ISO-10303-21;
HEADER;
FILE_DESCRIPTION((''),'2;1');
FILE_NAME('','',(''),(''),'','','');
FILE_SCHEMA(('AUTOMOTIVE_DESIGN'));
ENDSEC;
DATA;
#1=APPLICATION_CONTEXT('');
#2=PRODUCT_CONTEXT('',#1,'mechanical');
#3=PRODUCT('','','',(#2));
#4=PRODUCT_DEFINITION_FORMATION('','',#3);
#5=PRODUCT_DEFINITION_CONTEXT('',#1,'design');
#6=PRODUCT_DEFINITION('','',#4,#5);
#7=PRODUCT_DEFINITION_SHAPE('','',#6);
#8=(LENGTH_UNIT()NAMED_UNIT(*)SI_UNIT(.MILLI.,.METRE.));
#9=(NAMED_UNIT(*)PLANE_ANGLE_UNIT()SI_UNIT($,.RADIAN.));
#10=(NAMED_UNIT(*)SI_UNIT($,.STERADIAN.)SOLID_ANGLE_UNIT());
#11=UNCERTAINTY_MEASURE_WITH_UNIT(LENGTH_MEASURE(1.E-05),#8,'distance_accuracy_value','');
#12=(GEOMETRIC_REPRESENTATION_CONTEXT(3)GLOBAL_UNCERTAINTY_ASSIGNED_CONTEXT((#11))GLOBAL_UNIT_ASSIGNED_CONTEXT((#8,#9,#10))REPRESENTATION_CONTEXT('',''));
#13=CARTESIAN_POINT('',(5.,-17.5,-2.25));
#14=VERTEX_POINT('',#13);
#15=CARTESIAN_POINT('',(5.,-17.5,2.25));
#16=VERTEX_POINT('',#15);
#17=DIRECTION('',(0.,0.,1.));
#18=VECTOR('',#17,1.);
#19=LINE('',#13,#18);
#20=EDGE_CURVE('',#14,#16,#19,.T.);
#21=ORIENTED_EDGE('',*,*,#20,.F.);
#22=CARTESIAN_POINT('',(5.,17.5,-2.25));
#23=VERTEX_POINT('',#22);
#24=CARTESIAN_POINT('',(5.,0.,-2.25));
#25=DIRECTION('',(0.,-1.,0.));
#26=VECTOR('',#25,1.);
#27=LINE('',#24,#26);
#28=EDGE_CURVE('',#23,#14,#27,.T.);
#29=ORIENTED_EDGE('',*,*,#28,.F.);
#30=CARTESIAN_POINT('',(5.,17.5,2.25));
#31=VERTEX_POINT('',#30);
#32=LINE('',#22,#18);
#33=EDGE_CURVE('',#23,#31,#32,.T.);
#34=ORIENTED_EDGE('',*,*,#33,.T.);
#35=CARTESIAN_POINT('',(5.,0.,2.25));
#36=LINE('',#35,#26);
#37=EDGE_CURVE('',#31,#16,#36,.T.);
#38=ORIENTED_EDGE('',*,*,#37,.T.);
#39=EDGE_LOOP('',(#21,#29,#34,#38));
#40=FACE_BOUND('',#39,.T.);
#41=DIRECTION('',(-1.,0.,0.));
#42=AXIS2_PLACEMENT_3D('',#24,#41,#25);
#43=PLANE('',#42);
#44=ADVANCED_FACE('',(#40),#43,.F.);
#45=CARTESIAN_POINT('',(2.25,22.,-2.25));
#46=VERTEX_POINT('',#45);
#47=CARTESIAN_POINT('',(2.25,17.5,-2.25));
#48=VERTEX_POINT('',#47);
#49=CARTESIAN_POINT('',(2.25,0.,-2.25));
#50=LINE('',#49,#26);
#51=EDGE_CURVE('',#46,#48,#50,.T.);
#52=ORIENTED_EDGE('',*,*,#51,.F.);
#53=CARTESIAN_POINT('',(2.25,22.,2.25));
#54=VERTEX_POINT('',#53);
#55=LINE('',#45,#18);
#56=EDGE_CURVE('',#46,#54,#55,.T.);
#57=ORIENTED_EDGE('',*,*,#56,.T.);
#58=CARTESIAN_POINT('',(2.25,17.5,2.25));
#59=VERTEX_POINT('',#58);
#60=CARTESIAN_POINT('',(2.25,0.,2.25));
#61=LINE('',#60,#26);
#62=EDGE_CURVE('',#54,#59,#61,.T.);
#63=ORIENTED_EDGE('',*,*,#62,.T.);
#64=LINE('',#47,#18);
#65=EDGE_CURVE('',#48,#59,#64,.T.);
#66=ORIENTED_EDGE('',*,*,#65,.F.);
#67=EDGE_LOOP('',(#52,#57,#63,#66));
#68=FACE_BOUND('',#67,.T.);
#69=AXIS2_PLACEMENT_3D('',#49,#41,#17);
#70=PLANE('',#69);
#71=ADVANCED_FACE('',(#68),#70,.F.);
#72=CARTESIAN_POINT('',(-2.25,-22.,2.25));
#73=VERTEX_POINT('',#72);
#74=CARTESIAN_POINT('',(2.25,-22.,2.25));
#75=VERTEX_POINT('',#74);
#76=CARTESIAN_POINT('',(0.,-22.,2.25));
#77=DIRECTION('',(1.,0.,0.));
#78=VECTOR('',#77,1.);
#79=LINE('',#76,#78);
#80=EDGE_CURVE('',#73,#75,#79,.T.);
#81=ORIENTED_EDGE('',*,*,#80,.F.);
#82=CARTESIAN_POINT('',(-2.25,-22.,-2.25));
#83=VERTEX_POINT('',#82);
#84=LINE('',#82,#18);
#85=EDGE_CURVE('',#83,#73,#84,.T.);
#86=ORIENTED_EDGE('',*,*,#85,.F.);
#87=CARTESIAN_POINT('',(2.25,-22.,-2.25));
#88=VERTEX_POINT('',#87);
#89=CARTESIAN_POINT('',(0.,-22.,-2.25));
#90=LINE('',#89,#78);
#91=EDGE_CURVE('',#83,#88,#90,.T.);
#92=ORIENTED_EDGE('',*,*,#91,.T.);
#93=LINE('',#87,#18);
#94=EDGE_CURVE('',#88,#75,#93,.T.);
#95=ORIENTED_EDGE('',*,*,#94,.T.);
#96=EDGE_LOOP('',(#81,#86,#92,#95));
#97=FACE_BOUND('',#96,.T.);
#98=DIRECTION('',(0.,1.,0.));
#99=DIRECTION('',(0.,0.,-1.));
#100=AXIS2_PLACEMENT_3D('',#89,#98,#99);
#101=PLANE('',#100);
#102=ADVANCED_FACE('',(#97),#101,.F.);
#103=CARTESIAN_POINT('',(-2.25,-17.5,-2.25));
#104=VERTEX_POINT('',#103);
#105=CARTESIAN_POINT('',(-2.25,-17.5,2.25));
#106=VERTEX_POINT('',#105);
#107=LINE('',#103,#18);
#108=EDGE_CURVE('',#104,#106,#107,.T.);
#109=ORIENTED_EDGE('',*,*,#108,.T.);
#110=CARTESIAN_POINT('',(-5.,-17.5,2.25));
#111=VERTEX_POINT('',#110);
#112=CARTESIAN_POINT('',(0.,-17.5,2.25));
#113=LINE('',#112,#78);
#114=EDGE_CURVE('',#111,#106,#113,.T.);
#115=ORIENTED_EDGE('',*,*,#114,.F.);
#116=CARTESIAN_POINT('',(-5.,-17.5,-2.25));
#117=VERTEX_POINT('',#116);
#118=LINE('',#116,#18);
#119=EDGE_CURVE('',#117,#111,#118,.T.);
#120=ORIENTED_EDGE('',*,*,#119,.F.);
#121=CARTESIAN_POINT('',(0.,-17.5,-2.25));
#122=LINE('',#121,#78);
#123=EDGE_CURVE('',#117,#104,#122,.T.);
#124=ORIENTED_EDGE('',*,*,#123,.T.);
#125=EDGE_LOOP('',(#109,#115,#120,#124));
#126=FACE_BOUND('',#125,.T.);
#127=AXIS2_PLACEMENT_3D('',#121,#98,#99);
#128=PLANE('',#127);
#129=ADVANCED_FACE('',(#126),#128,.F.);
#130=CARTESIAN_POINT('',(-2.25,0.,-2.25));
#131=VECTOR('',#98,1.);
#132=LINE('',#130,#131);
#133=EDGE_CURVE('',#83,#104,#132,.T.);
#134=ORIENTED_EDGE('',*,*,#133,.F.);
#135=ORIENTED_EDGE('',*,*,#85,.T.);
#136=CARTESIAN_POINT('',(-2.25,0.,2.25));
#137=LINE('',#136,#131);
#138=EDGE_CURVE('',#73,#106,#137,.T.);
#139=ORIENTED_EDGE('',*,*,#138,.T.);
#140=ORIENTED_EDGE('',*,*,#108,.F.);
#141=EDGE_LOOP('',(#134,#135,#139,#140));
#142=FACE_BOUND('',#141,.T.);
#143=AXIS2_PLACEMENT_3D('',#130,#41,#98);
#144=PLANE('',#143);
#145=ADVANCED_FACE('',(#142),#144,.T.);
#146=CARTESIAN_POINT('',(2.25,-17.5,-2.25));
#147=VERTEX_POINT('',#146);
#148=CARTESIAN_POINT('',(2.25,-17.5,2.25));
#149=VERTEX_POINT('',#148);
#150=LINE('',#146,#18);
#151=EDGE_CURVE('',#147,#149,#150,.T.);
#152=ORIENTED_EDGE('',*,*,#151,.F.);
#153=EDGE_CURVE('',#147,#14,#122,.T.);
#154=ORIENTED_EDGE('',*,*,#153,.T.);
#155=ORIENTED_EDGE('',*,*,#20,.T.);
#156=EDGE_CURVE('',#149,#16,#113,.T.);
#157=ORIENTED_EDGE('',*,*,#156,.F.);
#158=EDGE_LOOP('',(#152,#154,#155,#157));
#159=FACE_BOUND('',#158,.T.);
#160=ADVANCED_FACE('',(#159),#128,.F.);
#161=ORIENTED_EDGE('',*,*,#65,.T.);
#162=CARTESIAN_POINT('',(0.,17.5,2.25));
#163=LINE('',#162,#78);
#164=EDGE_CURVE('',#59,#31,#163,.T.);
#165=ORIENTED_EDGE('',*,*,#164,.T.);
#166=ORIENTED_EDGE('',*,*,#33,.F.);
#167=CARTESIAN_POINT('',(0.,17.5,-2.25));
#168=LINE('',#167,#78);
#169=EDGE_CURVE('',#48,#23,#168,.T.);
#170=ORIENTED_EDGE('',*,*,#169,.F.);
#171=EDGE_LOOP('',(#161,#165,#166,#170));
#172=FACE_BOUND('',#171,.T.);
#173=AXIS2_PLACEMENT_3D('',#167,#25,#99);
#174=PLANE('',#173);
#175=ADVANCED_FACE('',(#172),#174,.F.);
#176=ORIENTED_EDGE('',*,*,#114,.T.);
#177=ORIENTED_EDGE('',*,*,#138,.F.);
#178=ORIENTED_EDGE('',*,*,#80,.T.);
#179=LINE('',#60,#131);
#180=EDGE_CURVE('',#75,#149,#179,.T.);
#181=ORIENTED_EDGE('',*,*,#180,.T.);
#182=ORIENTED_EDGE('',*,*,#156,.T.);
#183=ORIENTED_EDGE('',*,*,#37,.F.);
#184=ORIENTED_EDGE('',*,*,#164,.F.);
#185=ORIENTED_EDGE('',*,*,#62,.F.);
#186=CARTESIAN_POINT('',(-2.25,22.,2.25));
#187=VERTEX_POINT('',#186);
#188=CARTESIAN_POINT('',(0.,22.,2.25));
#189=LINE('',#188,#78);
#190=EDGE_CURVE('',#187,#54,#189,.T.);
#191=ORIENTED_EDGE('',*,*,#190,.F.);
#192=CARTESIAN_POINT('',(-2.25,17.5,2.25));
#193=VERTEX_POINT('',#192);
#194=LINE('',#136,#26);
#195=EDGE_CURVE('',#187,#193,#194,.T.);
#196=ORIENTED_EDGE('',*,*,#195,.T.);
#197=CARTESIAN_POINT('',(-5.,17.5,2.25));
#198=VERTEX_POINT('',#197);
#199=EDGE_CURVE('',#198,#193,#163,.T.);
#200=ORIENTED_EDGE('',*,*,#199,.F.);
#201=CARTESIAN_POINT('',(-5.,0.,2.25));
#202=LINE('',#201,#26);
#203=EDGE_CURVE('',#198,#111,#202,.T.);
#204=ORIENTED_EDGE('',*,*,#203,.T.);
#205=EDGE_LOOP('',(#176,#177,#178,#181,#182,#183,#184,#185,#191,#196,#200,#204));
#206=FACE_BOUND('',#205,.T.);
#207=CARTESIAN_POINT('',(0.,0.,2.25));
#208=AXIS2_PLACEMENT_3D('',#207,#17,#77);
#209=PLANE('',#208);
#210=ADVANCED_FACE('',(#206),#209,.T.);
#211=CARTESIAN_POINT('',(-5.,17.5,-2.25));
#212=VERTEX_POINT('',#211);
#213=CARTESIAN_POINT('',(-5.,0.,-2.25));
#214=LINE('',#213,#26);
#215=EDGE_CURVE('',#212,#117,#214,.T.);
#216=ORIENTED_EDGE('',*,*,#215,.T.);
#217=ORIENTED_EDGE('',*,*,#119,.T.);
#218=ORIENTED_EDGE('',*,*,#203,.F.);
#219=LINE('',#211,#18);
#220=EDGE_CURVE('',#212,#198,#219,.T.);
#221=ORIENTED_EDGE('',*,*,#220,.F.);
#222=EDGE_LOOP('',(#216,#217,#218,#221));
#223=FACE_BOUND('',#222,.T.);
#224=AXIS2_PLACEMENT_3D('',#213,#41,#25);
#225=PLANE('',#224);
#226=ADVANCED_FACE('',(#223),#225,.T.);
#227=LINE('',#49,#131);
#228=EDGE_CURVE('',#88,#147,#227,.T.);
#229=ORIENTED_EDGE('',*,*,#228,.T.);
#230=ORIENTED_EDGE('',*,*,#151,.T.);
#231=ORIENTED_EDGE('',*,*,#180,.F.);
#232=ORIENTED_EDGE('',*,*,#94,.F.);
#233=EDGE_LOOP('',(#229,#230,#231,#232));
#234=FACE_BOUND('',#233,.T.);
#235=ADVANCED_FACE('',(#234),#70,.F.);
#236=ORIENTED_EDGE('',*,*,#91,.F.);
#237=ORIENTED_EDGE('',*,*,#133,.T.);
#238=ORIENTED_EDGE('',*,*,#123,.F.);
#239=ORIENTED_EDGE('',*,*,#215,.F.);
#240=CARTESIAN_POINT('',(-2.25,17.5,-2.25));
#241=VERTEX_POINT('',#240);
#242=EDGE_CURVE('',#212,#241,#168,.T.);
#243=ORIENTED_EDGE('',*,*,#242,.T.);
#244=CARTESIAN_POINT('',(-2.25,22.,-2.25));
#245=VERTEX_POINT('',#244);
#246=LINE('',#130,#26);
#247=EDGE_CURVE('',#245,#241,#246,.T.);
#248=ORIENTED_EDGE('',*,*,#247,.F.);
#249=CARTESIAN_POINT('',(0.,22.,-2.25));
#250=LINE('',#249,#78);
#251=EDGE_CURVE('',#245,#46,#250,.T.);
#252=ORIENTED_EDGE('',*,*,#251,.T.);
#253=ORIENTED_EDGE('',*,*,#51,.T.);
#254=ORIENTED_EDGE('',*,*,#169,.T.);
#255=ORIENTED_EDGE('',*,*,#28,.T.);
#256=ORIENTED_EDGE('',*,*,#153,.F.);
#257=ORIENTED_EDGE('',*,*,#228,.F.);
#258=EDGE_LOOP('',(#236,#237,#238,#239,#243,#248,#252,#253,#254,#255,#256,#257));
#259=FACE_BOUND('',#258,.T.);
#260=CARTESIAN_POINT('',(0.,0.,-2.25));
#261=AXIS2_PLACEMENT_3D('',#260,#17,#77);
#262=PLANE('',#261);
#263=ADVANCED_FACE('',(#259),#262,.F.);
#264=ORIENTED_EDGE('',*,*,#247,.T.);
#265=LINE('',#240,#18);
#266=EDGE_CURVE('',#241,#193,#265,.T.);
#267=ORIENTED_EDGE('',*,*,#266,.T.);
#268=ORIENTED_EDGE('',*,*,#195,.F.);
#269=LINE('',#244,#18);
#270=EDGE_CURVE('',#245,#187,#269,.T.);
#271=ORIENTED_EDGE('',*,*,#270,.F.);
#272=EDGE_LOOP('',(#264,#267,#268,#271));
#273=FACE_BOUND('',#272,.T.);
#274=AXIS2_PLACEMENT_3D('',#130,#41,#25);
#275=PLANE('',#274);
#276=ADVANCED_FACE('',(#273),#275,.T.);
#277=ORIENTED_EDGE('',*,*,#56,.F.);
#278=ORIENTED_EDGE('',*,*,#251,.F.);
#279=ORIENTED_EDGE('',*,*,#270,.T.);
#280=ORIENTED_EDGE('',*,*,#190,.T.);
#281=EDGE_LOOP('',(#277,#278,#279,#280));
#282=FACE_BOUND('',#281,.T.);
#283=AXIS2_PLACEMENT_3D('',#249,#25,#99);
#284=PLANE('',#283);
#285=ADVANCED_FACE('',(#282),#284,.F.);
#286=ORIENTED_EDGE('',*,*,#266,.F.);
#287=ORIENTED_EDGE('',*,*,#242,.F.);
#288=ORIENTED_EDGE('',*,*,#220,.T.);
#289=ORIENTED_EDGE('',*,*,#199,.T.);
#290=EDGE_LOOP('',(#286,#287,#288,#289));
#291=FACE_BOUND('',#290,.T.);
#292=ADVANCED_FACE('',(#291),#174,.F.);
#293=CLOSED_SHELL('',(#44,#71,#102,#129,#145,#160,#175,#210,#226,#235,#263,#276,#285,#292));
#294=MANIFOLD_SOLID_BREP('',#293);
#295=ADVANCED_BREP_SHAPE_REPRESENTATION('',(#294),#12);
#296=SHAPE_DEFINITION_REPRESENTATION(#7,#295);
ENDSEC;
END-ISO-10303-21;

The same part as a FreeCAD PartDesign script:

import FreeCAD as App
import Part
import Sketcher
Q = App.Units.Quantity

doc = App.newDocument("Part")
body = doc.addObject("PartDesign::Body", "Body")

sketch1 = body.newObject("Sketcher::SketchObject", "Sketch")
sketch1.AttachmentSupport = (doc.getObject("XY_Plane"), [""])
sketch1.MapMode = "FlatFace"
sketch1.addGeometry(Part.LineSegment(App.Vector(-2.2, 22, 0), App.Vector(-2.2, 17.5, 0)), False)
sketch1.addGeometry(Part.LineSegment(App.Vector(-2.2, 17.5, 0), App.Vector(-5, 17.5, 0)), False)
sketch1.addGeometry(Part.LineSegment(App.Vector(-5, 17.5, 0), App.Vector(-5, 0, 0)), False)
sketch1.addGeometry(Part.LineSegment(App.Vector(-5, 0, 0), App.Vector(5, 0, 0)), False)
sketch1.addGeometry(Part.LineSegment(App.Vector(5, 0, 0), App.Vector(5, 17.5, 0)), False)
sketch1.addGeometry(Part.LineSegment(App.Vector(5, 17.5, 0), App.Vector(2.2, 17.5, 0)), False)
sketch1.addGeometry(Part.LineSegment(App.Vector(2.2, 17.5, 0), App.Vector(2.2, 22, 0)), False)
sketch1.addGeometry(Part.LineSegment(App.Vector(2.2, 22, 0), App.Vector(-2.2, 22, 0)), False)
sketch1.addConstraint(Sketcher.Constraint("Coincident", 0, 2, 1, 1))
sketch1.addConstraint(Sketcher.Constraint("Coincident", 1, 2, 2, 1))
sketch1.addConstraint(Sketcher.Constraint("Coincident", 2, 2, 3, 1))
sketch1.addConstraint(Sketcher.Constraint("Coincident", 3, 2, 4, 1))
sketch1.addConstraint(Sketcher.Constraint("Coincident", 4, 2, 5, 1))
sketch1.addConstraint(Sketcher.Constraint("Coincident", 5, 2, 6, 1))
sketch1.addConstraint(Sketcher.Constraint("Coincident", 6, 2, 7, 1))
sketch1.addConstraint(Sketcher.Constraint("Coincident", 7, 2, 0, 1))
sketch1.addConstraint(Sketcher.Constraint("Vertical", 0))
sketch1.addConstraint(Sketcher.Constraint("Horizontal", 1))
sketch1.addConstraint(Sketcher.Constraint("Vertical", 2))
sketch1.addConstraint(Sketcher.Constraint("Horizontal", 3))
sketch1.addConstraint(Sketcher.Constraint("Vertical", 4))
sketch1.addConstraint(Sketcher.Constraint("Horizontal", 5))
sketch1.addConstraint(Sketcher.Constraint("Vertical", 6))
sketch1.addConstraint(Sketcher.Constraint("Horizontal", 7))
sketch1.addConstraint(Sketcher.Constraint("Symmetric", 2, 2, 3, 2, -1, 1))
sketch1.addConstraint(Sketcher.Constraint("Symmetric", 0, 2, 5, 2, -2))
sketch1.addConstraint(Sketcher.Constraint("Equal", 7, 0))
sketch1.addConstraint(Sketcher.Constraint("DistanceX", 3, 1, 3, 2, Q("10 mm")))
sketch1.addConstraint(Sketcher.Constraint("DistanceX", 7, 2, 7, 1, Q("4.5 mm")))
sketch1.addConstraint(Sketcher.Constraint("DistanceY", 2, 2, 2, 1, Q("17.5 mm")))
pad1 = body.newObject("PartDesign::Pad", "Pad")
pad1.Profile = sketch1
pad1.Length = 4.5
pad1.Midplane = True
body2 = doc.addObject("PartDesign::Body", "Body001")
doc.recompute()

body2.BaseFeature = body
doc.recompute()

mirroring = doc.addObject("Part::Mirroring", "Mirroring")
mirroring.Source = body
mirroring.Base = App.Vector(0, 0, 0)
mirroring.Normal = App.Vector(0, 1, 0)
body3 = doc.addObject("PartDesign::Body", "Body002")
body3.BaseFeature = mirroring
boolean = body2.newObject("PartDesign::Boolean", "Boolean")
boolean.Type = "Fuse"
boolean.addObjects([body3])
doc.recompute()
mirroring.Visibility = False

doc.recompute()
